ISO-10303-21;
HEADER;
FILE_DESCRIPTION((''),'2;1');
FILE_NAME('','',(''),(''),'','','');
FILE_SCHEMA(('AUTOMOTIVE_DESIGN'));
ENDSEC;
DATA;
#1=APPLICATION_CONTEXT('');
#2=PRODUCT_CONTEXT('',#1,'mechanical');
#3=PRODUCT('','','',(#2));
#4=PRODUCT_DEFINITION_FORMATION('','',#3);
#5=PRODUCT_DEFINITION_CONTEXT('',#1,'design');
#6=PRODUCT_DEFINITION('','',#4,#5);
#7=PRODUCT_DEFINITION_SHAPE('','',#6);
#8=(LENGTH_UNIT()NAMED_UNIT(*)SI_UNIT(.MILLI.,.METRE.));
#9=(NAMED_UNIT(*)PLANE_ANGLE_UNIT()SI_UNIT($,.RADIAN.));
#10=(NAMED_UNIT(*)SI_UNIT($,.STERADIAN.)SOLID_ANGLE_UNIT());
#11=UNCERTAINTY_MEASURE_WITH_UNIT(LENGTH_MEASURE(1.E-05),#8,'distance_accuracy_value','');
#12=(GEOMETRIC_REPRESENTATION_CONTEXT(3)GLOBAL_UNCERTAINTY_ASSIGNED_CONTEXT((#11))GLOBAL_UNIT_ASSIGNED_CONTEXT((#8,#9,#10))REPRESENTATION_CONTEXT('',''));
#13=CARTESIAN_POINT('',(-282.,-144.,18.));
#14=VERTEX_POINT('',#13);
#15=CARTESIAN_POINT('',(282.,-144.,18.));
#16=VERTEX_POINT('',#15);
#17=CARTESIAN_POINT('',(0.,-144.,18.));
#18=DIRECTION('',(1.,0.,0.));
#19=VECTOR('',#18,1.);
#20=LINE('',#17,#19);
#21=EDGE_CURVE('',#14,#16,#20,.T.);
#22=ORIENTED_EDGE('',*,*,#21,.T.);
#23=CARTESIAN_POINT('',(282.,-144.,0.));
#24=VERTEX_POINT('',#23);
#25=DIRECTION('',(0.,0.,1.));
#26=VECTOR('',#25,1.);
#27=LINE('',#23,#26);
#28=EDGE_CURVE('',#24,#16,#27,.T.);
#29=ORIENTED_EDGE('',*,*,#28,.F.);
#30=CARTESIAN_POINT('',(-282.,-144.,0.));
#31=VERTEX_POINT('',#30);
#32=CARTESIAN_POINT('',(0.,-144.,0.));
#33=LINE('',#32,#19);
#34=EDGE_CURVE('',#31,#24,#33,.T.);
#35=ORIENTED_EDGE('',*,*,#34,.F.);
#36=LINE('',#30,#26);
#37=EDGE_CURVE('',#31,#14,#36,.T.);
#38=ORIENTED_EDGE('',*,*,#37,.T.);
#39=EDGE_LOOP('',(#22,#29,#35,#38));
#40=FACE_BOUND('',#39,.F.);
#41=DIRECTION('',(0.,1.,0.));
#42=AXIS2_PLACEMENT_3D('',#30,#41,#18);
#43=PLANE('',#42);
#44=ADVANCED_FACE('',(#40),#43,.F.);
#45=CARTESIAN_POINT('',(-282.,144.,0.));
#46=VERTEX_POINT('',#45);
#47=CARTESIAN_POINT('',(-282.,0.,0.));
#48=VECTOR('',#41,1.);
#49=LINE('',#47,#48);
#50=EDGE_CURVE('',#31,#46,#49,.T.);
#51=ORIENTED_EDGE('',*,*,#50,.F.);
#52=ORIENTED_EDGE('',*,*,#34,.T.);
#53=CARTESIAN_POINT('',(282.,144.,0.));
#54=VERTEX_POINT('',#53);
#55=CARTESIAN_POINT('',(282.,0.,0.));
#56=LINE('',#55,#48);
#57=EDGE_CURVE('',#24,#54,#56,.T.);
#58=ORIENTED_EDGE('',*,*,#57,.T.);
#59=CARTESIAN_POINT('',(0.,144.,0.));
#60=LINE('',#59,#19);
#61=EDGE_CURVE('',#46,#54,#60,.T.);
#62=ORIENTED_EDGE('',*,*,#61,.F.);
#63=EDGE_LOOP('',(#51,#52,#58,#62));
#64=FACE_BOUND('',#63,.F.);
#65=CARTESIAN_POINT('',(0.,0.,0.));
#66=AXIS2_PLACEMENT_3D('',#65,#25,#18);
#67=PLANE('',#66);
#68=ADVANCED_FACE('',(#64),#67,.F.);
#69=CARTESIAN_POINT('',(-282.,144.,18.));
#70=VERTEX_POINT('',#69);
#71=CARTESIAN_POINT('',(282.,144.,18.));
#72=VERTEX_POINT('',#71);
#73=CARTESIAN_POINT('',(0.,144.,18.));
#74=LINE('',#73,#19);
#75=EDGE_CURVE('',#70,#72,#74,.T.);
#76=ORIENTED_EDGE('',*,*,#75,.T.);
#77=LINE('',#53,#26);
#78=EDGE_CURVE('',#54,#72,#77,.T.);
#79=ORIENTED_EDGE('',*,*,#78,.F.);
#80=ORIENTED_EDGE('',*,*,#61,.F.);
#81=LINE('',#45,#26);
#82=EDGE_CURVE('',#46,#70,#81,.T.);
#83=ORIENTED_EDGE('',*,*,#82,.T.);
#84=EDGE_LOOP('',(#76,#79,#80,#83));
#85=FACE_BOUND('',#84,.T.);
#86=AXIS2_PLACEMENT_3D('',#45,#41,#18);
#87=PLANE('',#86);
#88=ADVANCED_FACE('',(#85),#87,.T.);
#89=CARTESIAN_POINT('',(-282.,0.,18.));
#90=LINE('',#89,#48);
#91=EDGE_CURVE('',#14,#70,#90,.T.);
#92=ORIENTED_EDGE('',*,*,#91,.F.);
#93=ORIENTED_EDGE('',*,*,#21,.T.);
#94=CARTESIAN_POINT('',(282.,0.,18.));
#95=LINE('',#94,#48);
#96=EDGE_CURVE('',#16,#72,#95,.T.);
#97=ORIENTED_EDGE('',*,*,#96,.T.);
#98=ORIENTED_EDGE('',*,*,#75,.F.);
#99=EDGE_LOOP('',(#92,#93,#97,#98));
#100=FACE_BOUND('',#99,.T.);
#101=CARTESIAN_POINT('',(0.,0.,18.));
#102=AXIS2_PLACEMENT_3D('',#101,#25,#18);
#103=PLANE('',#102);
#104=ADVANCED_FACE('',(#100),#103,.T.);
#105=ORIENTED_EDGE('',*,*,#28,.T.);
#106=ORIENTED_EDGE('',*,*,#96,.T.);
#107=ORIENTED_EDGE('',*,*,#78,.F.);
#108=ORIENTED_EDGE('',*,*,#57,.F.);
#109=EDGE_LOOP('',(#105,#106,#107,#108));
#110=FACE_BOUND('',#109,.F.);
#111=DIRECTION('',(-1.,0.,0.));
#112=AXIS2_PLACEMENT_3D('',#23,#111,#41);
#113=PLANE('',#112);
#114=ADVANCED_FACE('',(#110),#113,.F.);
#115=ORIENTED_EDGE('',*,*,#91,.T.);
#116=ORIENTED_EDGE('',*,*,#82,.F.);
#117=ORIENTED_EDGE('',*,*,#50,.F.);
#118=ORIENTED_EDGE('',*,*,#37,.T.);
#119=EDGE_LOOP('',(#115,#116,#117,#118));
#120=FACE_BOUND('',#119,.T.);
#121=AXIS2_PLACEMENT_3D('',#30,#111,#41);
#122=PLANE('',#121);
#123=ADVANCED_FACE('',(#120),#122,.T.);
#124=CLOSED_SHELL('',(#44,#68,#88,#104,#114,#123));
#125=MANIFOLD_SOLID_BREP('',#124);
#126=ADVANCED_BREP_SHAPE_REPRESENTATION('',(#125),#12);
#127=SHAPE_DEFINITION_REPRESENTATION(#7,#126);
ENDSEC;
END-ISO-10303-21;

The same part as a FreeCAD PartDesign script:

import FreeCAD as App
import Part
import Sketcher
from FreeCAD import Vector


def add_polygon(sketch, points):
    """Adds a closed chain of lines whose ends are joined by coincident constraints."""
    first, n = sketch.GeometryCount, len(points)
    for a, b in zip(points, points[1:] + points[:1]):
        sketch.addGeometry(Part.LineSegment(App.Vector(*a, 0), App.Vector(*b, 0)), False)
    for i in range(n):
        sketch.addConstraint(Sketcher.Constraint("Coincident", first + i, 2, first + (i + 1) % n, 1))

doc = App.newDocument("Part")
params = doc.addObject("Spreadsheet::Sheet", "Params")
for row, (alias, value) in enumerate([
    ("sketch1_width", "564 mm"),
    ("sketch1_height", "288 mm"),
    ("pad1_length", "18 mm"),
], start=1):
    params.set(f"A{row}", alias)
    params.set(f"B{row}", "=" + value)
    params.setAlias(f"B{row}", alias)

body = doc.addObject("PartDesign::Body", "Body")

# Sketch on XY plane
sketch1 = doc.addObject("Sketcher::SketchObject", "Sketch")
body.addObject(sketch1)
sketch1.AttachmentSupport = (doc.XY_Plane, [""])
sketch1.MapMode = "FlatFace"
add_polygon(sketch1, [(-282, 144), (-282, -144), (282, -144), (282, 144)])  # lines 0-3
sketch1.addConstraint([
    Sketcher.Constraint("Vertical", 0),
    Sketcher.Constraint("Horizontal", 1),
    Sketcher.Constraint("Vertical", 2),
    Sketcher.Constraint("Horizontal", 3),
    Sketcher.Constraint("Symmetric", 0, 2, 2, 2, -1, 1),
    Sketcher.Constraint("DistanceX", 1, 1, 1, 2, 564.0),
    Sketcher.Constraint("DistanceY", 0, 2, 0, 1, 288.0),
])
sketch1.setExpression("Constraints[9]", "Params.sketch1_width")
sketch1.setExpression("Constraints[10]", "Params.sketch1_height")
pad1 = doc.addObject("PartDesign::Pad", "Pad")
body.addObject(pad1)
pad1.Profile = sketch1
pad1.setExpression("Length", "Params.pad1_length")

doc.recompute()
